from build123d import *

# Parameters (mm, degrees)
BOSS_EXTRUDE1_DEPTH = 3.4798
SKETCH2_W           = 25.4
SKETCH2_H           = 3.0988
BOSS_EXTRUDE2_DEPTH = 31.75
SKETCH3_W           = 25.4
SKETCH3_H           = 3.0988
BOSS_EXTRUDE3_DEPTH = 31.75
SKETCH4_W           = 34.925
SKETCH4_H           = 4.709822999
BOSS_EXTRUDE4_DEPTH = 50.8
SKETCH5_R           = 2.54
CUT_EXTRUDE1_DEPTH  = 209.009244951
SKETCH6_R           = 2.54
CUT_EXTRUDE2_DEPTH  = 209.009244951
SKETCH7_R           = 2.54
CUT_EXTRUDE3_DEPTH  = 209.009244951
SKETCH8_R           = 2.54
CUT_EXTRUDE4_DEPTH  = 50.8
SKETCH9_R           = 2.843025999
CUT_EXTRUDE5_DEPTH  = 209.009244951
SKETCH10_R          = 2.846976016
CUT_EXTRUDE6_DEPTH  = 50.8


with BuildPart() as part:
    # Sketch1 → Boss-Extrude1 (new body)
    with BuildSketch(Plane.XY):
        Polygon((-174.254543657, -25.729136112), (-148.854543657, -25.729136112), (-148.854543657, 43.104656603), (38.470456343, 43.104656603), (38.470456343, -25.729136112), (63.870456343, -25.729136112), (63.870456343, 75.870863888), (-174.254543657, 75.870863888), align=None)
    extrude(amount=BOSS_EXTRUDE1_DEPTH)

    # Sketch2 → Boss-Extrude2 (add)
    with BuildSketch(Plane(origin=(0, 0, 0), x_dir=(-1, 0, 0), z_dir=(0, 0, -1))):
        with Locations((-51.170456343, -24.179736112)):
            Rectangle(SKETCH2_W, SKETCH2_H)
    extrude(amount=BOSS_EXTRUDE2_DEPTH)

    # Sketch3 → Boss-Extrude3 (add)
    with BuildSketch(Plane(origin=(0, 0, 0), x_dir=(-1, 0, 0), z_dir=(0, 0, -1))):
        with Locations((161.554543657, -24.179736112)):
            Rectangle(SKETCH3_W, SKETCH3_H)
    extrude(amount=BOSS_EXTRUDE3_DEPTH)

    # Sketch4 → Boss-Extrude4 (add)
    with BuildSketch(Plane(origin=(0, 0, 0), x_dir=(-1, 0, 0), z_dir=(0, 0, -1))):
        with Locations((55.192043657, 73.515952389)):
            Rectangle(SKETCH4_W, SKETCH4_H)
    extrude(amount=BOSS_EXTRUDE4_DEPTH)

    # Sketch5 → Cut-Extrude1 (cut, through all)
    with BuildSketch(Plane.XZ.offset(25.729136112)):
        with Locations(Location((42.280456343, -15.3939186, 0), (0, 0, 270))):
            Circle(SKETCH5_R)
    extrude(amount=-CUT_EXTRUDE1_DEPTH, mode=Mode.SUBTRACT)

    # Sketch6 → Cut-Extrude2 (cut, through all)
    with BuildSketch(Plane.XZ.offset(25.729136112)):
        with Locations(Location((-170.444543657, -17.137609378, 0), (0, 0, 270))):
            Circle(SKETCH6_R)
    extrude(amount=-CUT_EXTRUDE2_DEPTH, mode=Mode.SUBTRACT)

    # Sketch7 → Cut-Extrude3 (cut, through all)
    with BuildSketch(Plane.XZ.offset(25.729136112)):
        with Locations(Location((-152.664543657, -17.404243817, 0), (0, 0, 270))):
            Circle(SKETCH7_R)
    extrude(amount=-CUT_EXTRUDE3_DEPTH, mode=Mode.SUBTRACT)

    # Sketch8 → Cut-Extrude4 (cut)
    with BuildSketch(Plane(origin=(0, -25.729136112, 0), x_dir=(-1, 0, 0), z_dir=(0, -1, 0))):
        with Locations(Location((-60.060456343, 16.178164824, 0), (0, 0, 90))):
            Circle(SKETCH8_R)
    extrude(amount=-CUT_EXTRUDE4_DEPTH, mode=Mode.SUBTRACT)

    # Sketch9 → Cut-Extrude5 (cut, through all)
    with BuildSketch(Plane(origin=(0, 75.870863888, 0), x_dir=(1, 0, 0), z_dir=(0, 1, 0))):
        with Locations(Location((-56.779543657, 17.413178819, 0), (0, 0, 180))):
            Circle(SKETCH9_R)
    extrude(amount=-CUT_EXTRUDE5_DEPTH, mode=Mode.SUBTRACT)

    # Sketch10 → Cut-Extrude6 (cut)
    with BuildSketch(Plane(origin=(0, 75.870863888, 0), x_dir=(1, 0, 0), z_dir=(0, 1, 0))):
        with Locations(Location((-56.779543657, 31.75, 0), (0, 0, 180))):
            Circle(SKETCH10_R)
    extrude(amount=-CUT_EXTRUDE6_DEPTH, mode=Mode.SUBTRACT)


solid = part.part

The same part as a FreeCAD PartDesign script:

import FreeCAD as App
import Part
import Sketcher
from FreeCAD import Vector
Q = App.Units.Quantity


def add_polygon(sketch, points):
    """Adds a closed chain of lines whose ends are joined by coincident constraints."""
    first, n = sketch.GeometryCount, len(points)
    for a, b in zip(points, points[1:] + points[:1]):
        sketch.addGeometry(Part.LineSegment(App.Vector(*a, 0), App.Vector(*b, 0)), False)
    for i in range(n):
        sketch.addConstraint(Sketcher.Constraint("Coincident", first + i, 2, first + (i + 1) % n, 1))

doc = App.newDocument("Part")
params = doc.addObject("Spreadsheet::Sheet", "Params")
for row, (alias, value) in enumerate([
    ("sketch1_width", "1 in"),
    ("sketch1_height", "4 in"),
    ("sketch1_width2", "7.375 in"),
    ("pad1_length", "0.137 in"),
    ("sketch2_width", "1 in"),
    ("sketch2_height", "0.122 in"),
    ("pad2_length", "1.25 in"),
    ("sketch3_width", "1 in"),
    ("sketch3_height", "0.122 in"),
    ("pad3_length", "1.25 in"),
    ("sketch4_width", "1.375 in"),
    ("pad4_length", "2 in"),
    ("sketch5_diameter", "0.2 in"),
    ("sketch6_diameter", "0.2 in"),
    ("sketch7_diameter", "0.2 in"),
    ("sketch8_diameter", "0.2 in"),
    ("pocket4_length", "2 in"),
    ("pocket6_length", "2 in"),
], start=1):
    params.set(f"A{row}", alias)
    params.set(f"B{row}", "=" + value)
    params.setAlias(f"B{row}", alias)

body = doc.addObject("PartDesign::Body", "Body")

# Sketch on XY plane
sketch1 = body.newObject("Sketcher::SketchObject", "Sketch")
sketch1.AttachmentSupport = (doc.getObject("XY_Plane"), [""])
sketch1.MapMode = "FlatFace"
add_polygon(sketch1, [(-174, -26), (-149, -26), (-149, 43), (38, 43), (38, -26), (64, -26), (64, 76), (-174, 76)])  # lines 0-7
sketch1.addConstraint(Sketcher.Constraint("Horizontal", 0))
sketch1.addConstraint(Sketcher.Constraint("Vertical", 1))
sketch1.addConstraint(Sketcher.Constraint("Horizontal", 2))
sketch1.addConstraint(Sketcher.Constraint("Vertical", 3))
sketch1.addConstraint(Sketcher.Constraint("Horizontal", 4))
sketch1.addConstraint(Sketcher.Constraint("Vertical", 5))
sketch1.addConstraint(Sketcher.Constraint("Horizontal", 6))
sketch1.addConstraint(Sketcher.Constraint("Vertical", 7))
sketch1.addConstraint(Sketcher.Constraint("Horizontal", 0, 2, 3, 2))
sketch1.addConstraint(Sketcher.Constraint("Equal", 0, 4))
sketch1.addConstraint(Sketcher.Constraint("DistanceX", 0, 1, 0, 2, Q("1 in")))
sketch1.addConstraint(Sketcher.Constraint("DistanceY", 5, 1, 5, 2, Q("4 in")))
sketch1.addConstraint(Sketcher.Constraint("DistanceX", 2, 1, 2, 2, Q("7.375 in")))
sketch1.addConstraint(Sketcher.Constraint("DistanceY", 1, 1, 1, 2, 68.833793))
sketch1.addConstraint(Sketcher.Constraint("DistanceX", 0, 2, -1, 1, 148.854544))
sketch1.addConstraint(Sketcher.Constraint("DistanceY", 0, 2, -1, 1, 25.729136))
sketch1.setExpression("Constraints[18]", "Params.sketch1_width")
sketch1.setExpression("Constraints[19]", "Params.sketch1_height")
sketch1.setExpression("Constraints[20]", "Params.sketch1_width2")
pad1 = body.newObject("PartDesign::Pad", "Pad")
pad1.Profile = sketch1
pad1.setExpression("Length", "Params.pad1_length")

# Sketch on XY plane
sketch2 = body.newObject("Sketcher::SketchObject", "Sketch001")
sketch2.AttachmentSupport = (doc.getObject("XY_Plane"), [""])
sketch2.MapMode = "FlatFace"
add_polygon(sketch2, [(63.9, -22.6), (63.9, -25.7), (38.5, -25.7), (38.5, -22.6)])  # lines 0-3
sketch2.addConstraint(Sketcher.Constraint("Vertical", 0))
sketch2.addConstraint(Sketcher.Constraint("Horizontal", 1))
sketch2.addConstraint(Sketcher.Constraint("Vertical", 2))
sketch2.addConstraint(Sketcher.Constraint("Horizontal", 3))
sketch2.addConstraint(Sketcher.Constraint("DistanceX", 1, 2, 1, 1, Q("1 in")))
sketch2.addConstraint(Sketcher.Constraint("DistanceY", 0, 2, 0, 1, Q("0.122 in")))
sketch2.addConstraint(Sketcher.Constraint("DistanceX", -1, 1, 0, 2, 63.870456))
sketch2.addConstraint(Sketcher.Constraint("DistanceY", 0, 2, -1, 1, 25.729136))
sketch2.setExpression("Constraints[8]", "Params.sketch2_width")
sketch2.setExpression("Constraints[9]", "Params.sketch2_height")
pad2 = body.newObject("PartDesign::Pad", "Pad001")
pad2.Profile = sketch2
pad2.setExpression("Length", "Params.pad2_length")
pad2.Reversed = True

# Sketch on XY plane
sketch3 = body.newObject("Sketcher::SketchObject", "Sketch002")
sketch3.AttachmentSupport = (doc.getObject("XY_Plane"), [""])
sketch3.MapMode = "FlatFace"
add_polygon(sketch3, [(-148.9, -22.6), (-148.9, -25.7), (-174.3, -25.7), (-174.3, -22.6)])  # lines 0-3
sketch3.addConstraint(Sketcher.Constraint("Vertical", 0))
sketch3.addConstraint(Sketcher.Constraint("Horizontal", 1))
sketch3.addConstraint(Sketcher.Constraint("Vertical", 2))
sketch3.addConstraint(Sketcher.Constraint("Horizontal", 3))
sketch3.addConstraint(Sketcher.Constraint("DistanceX", 1, 2, 1, 1, Q("1 in")))
sketch3.addConstraint(Sketcher.Constraint("DistanceY", 0, 2, 0, 1, Q("0.122 in")))
sketch3.addConstraint(Sketcher.Constraint("DistanceX", 0, 2, -1, 1, 148.854544))
sketch3.addConstraint(Sketcher.Constraint("DistanceY", 0, 2, -1, 1, 25.729136))
sketch3.setExpression("Constraints[8]", "Params.sketch3_width")
sketch3.setExpression("Constraints[9]", "Params.sketch3_height")
pad3 = body.newObject("PartDesign::Pad", "Pad002")
pad3.Profile = sketch3
pad3.setExpression("Length", "Params.pad3_length")
pad3.Reversed = True

# Sketch on XY plane
sketch4 = body.newObject("Sketcher::SketchObject", "Sketch003")
sketch4.AttachmentSupport = (doc.getObject("XY_Plane"), [""])
sketch4.MapMode = "FlatFace"
add_polygon(sketch4, [(-37.7, 75.9), (-37.7, 71.2), (-72.7, 71.2), (-72.7, 75.9)])  # lines 0-3
sketch4.addConstraint(Sketcher.Constraint("Vertical", 0))
sketch4.addConstraint(Sketcher.Constraint("Horizontal", 1))
sketch4.addConstraint(Sketcher.Constraint("Vertical", 2))
sketch4.addConstraint(Sketcher.Constraint("Horizontal", 3))
sketch4.addConstraint(Sketcher.Constraint("DistanceX", 1, 2, 1, 1, Q("1.375 in")))
sketch4.addConstraint(Sketcher.Constraint("DistanceY", 0, 2, 0, 1, 4.709823))
sketch4.addConstraint(Sketcher.Constraint("DistanceY", -1, 1, 0, 2, 71.161041))
sketch4.addConstraint(Sketcher.Constraint("DistanceX", 0, 2, -1, 1, 37.729544))
sketch4.setExpression("Constraints[8]", "Params.sketch4_width")
pad4 = body.newObject("PartDesign::Pad", "Pad003")
pad4.Profile = sketch4
pad4.setExpression("Length", "Params.pad4_length")
pad4.Reversed = True

# Sketch on XZ plane
sketch5 = body.newObject("Sketcher::SketchObject", "Sketch004")
sketch5.AttachmentSupport = (doc.getObject("XZ_Plane"), [""])
sketch5.MapMode = "FlatFace"
sketch5.AttachmentOffset = App.Placement(Vector(0, 0, 25.729136), App.Rotation())
sketch5.addGeometry(Part.Circle(Vector(42.3, -15.4, 0), Vector(0, 0, 1), 2.5), False)
sketch5.addConstraint(Sketcher.Constraint("Diameter", 0, Q("0.2 in")))
sketch5.addConstraint(Sketcher.Constraint("DistanceY", 0, 3, -1, 1, 15.393919))
sketch5.addConstraint(Sketcher.Constraint("DistanceX", -1, 1, 0, 3, 42.280456))
sketch5.setExpression("Constraints[0]", "Params.sketch5_diameter")
pocket1 = body.newObject("PartDesign::Pocket", "Pocket")
pocket1.Profile = sketch5
pocket1.Type = "ThroughAll"

# Sketch on XZ plane
sketch6 = body.newObject("Sketcher::SketchObject", "Sketch005")
sketch6.AttachmentSupport = (doc.getObject("XZ_Plane"), [""])
sketch6.MapMode = "FlatFace"
sketch6.AttachmentOffset = App.Placement(Vector(0, 0, 25.729136), App.Rotation())
sketch6.addGeometry(Part.Circle(Vector(-170.4, -17.1, 0), Vector(0, 0, 1), 2.5), False)
sketch6.addConstraint(Sketcher.Constraint("Diameter", 0, Q("0.2 in")))
sketch6.addConstraint(Sketcher.Constraint("DistanceY", 0, 3, -1, 1, 17.137609))
sketch6.addConstraint(Sketcher.Constraint("DistanceX", 0, 3, -1, 1, 170.444544))
sketch6.setExpression("Constraints[0]", "Params.sketch6_diameter")
pocket2 = body.newObject("PartDesign::Pocket", "Pocket001")
pocket2.Profile = sketch6
pocket2.Type = "ThroughAll"

# Sketch on XZ plane
sketch7 = body.newObject("Sketcher::SketchObject", "Sketch006")
sketch7.AttachmentSupport = (doc.getObject("XZ_Plane"), [""])
sketch7.MapMode = "FlatFace"
sketch7.AttachmentOffset = App.Placement(Vector(0, 0, 25.729136), App.Rotation())
sketch7.addGeometry(Part.Circle(Vector(-152.7, -17.4, 0), Vector(0, 0, 1), 2.5), False)
sketch7.addConstraint(Sketcher.Constraint("Diameter", 0, Q("0.2 in")))
sketch7.addConstraint(Sketcher.Constraint("DistanceX", 0, 3, -1, 1, 152.664544))
sketch7.addConstraint(Sketcher.Constraint("DistanceY", 0, 3, -1, 1, 17.404244))
sketch7.setExpression("Constraints[0]", "Params.sketch7_diameter")
pocket3 = body.newObject("PartDesign::Pocket", "Pocket002")
pocket3.Profile = sketch7
pocket3.Type = "ThroughAll"

# Sketch on XZ plane
sketch8 = body.newObject("Sketcher::SketchObject", "Sketch007")
sketch8.AttachmentSupport = (doc.getObject("XZ_Plane"), [""])
sketch8.MapMode = "FlatFace"
sketch8.AttachmentOffset = App.Placement(Vector(0, 0, 25.729136), App.Rotation())
sketch8.addGeometry(Part.Circle(Vector(60.1, -16.2, 0), Vector(0, 0, 1), 2.5), False)
sketch8.addConstraint(Sketcher.Constraint("Diameter", 0, Q("0.2 in")))
sketch8.addConstraint(Sketcher.Constraint("DistanceX", -1, 1, 0, 3, 60.060456))
sketch8.addConstraint(Sketcher.Constraint("DistanceY", 0, 3, -1, 1, 16.178165))
sketch8.setExpression("Constraints[0]", "Params.sketch8_diameter")
pocket4 = body.newObject("PartDesign::Pocket", "Pocket003")
pocket4.Profile = sketch8
pocket4.setExpression("Length", "Params.pocket4_length")

# Sketch on XZ plane
sketch9 = body.newObject("Sketcher::SketchObject", "Sketch008")
sketch9.AttachmentSupport = (doc.getObject("XZ_Plane"), [""])
sketch9.MapMode = "FlatFace"
sketch9.AttachmentOffset = App.Placement(Vector(0, 0, -75.870864), App.Rotation())
sketch9.addGeometry(Part.Circle(Vector(-56.8, -17.4, 0), Vector(0, 0, 1), 2.8), False)
sketch9.addConstraint(Sketcher.Constraint("Diameter", 0, 5.686052))
sketch9.addConstraint(Sketcher.Constraint("DistanceY", 0, 3, -1, 1, 17.413179))
sketch9.addConstraint(Sketcher.Constraint("DistanceX", 0, 3, -1, 1, 56.779544))
pocket5 = body.newObject("PartDesign::Pocket", "Pocket004")
pocket5.Profile = sketch9
pocket5.Type = "ThroughAll"
pocket5.Reversed = True

# Sketch on XZ plane
sketch10 = body.newObject("Sketcher::SketchObject", "Sketch009")
sketch10.AttachmentSupport = (doc.getObject("XZ_Plane"), [""])
sketch10.MapMode = "FlatFace"
sketch10.AttachmentOffset = App.Placement(Vector(0, 0, -75.870864), App.Rotation())
sketch10.addGeometry(Part.Circle(Vector(-56.8, -31.8, 0), Vector(0, 0, 1), 2.8), False)
sketch10.addConstraint(Sketcher.Constraint("DistanceY", 0, 3, -1, 1, Q("1.25 in")))
sketch10.addConstraint(Sketcher.Constraint("Diameter", 0, 5.693952))
sketch10.addConstraint(Sketcher.Constraint("DistanceX", 0, 3, -1, 1, 56.779544))
pocket6 = body.newObject("PartDesign::Pocket", "Pocket005")
pocket6.Profile = sketch10
pocket6.setExpression("Length", "Params.pocket6_length")
pocket6.Reversed = True

doc.recompute()
